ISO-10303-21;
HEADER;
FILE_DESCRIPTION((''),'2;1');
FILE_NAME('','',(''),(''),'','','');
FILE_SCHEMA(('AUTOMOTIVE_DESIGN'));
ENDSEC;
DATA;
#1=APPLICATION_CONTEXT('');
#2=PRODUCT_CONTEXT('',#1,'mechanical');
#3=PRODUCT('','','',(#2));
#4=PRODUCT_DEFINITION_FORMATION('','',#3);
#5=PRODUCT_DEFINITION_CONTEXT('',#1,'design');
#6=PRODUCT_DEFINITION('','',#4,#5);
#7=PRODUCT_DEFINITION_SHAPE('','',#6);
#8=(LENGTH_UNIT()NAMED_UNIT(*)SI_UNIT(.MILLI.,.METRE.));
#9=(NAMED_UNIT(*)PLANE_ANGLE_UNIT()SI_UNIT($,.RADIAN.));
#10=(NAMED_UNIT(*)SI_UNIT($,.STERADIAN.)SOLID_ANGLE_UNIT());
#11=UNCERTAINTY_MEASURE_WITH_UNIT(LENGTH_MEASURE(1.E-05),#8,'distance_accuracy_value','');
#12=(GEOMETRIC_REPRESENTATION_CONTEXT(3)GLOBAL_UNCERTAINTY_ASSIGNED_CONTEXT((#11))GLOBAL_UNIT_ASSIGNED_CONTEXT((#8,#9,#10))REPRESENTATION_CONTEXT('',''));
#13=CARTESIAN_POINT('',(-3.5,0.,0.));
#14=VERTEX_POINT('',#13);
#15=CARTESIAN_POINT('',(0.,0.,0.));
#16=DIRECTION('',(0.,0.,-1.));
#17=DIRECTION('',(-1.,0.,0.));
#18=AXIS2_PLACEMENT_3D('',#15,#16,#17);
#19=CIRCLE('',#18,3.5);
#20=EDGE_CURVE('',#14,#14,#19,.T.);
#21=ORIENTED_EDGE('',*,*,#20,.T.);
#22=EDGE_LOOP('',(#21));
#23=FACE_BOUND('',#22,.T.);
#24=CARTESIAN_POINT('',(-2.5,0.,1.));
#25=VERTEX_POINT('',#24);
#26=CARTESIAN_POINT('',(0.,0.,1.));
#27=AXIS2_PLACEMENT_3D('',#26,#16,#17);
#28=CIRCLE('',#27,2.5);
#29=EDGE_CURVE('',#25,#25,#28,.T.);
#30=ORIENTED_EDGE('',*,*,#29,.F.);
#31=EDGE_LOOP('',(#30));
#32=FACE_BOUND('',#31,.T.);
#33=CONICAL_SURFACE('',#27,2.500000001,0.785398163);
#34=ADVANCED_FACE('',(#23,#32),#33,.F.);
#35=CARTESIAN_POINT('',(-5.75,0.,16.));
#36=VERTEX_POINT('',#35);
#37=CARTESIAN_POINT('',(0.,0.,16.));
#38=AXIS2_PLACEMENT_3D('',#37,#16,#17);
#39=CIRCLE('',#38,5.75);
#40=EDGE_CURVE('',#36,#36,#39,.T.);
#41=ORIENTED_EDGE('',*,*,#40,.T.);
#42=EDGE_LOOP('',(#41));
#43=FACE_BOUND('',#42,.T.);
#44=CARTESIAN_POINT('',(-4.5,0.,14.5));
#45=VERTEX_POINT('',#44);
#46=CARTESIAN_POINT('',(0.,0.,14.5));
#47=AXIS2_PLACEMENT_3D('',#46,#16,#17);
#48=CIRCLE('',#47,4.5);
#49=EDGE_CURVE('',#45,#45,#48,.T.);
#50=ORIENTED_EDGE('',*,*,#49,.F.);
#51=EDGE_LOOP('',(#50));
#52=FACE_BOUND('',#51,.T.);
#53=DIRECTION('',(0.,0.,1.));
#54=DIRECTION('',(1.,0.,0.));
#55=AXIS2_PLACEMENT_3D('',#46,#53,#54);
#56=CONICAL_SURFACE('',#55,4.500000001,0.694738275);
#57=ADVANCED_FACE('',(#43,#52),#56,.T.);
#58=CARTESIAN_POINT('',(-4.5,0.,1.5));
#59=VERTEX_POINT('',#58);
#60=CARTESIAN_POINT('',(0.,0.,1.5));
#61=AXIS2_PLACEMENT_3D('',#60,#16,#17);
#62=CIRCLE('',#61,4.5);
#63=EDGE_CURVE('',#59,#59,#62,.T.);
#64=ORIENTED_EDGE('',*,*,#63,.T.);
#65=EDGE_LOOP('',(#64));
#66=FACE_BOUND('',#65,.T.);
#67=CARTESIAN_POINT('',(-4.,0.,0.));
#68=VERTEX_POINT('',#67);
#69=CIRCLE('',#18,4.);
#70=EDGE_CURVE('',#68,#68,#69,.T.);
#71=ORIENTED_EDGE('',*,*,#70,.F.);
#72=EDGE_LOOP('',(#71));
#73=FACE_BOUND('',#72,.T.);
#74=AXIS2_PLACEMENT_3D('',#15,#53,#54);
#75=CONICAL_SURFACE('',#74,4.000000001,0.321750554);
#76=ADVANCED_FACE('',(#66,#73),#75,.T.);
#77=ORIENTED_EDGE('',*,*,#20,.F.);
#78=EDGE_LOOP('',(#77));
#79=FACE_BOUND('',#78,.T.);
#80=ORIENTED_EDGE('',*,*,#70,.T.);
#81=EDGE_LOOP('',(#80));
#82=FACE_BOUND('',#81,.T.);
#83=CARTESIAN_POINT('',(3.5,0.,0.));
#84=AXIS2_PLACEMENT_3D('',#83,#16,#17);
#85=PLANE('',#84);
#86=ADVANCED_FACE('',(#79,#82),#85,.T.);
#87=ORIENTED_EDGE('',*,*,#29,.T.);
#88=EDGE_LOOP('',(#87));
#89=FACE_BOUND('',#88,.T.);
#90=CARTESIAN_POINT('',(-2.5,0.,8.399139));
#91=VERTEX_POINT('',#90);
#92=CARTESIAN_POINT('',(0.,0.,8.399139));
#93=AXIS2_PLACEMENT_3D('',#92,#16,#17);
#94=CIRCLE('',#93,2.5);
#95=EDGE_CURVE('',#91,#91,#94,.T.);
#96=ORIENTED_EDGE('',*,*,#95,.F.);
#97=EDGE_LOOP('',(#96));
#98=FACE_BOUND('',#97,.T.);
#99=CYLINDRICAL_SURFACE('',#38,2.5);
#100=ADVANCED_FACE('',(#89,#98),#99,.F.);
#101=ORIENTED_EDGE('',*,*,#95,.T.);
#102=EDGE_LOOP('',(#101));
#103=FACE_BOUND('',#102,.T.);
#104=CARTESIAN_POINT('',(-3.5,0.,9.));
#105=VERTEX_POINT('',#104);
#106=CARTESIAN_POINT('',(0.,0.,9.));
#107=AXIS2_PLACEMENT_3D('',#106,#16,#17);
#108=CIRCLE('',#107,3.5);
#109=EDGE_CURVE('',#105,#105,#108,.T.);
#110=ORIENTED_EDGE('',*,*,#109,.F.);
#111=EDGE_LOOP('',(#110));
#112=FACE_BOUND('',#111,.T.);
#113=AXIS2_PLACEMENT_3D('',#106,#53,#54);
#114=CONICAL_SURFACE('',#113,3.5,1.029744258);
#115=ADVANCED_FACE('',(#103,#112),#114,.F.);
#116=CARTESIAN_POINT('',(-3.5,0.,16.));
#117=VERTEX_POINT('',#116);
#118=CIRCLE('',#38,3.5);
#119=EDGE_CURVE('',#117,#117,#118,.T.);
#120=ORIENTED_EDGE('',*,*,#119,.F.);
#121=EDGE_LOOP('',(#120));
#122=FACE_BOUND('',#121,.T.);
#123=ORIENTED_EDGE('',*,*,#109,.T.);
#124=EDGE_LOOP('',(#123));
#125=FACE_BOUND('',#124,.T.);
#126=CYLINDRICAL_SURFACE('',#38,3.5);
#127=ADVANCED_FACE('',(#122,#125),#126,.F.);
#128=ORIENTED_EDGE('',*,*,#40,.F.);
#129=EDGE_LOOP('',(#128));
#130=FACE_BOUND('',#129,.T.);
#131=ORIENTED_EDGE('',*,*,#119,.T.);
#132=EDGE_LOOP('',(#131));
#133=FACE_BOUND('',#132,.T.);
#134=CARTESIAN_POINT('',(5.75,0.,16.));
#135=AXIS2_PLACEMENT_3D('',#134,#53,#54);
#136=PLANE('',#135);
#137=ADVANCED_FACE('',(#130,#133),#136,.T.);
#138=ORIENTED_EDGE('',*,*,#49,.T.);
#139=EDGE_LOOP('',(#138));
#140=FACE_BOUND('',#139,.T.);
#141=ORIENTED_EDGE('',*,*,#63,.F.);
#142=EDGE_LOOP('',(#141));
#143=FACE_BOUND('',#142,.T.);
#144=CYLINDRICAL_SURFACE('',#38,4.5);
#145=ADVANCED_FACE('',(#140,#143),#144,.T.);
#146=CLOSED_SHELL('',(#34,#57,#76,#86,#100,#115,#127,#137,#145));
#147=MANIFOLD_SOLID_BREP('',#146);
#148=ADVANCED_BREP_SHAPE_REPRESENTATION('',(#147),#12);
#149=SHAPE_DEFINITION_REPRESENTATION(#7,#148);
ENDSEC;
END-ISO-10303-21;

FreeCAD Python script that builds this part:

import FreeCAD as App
import Part
import Sketcher
Q = App.Units.Quantity


def add_polygon(sketch, points):
    """Adds a closed chain of lines whose ends are joined by coincident constraints."""
    first, n = sketch.GeometryCount, len(points)
    for a, b in zip(points, points[1:] + points[:1]):
        sketch.addGeometry(Part.LineSegment(App.Vector(*a, 0), App.Vector(*b, 0)), False)
    for i in range(n):
        sketch.addConstraint(Sketcher.Constraint("Coincident", first + i, 2, first + (i + 1) % n, 1))

doc = App.newDocument("Part")
params = doc.addObject("Spreadsheet::Sheet", "Params")
for row, (alias, value) in enumerate([
    ("sketch1_height", "13 mm"),
    ("sketch1_height2", "7 mm"),
    ("sketch1_width", "0.5 mm"),
    ("sketch1_width2", "2.25 mm"),
    ("revolution_angle", "360 deg"),
], start=1):
    params.set(f"A{row}", alias)
    params.set(f"B{row}", "=" + value)
    params.setAlias(f"B{row}", alias)

body = doc.addObject("PartDesign::Body", "Body")

# Sketch on XZ plane
sketch1 = body.newObject("Sketcher::SketchObject", "Sketch")
sketch1.AttachmentSupport = (doc.getObject("XZ_Plane"), [""])
sketch1.MapMode = "FlatFace"
add_polygon(sketch1, [(3.5, 9), (2.5, 8.399139), (2.5, 1), (3.5, 0), (4, 0), (4.5, 1.5), (4.5, 14.5), (5.75, 16), (3.5, 16)])  # lines 0-8
sketch1.addConstraint(Sketcher.Constraint("Vertical", 1))
sketch1.addConstraint(Sketcher.Constraint("Horizontal", 3))
sketch1.addConstraint(Sketcher.Constraint("Vertical", 5))
sketch1.addConstraint(Sketcher.Constraint("Horizontal", 7))
sketch1.addConstraint(Sketcher.Constraint("Vertical", 8))
sketch1.addConstraint(Sketcher.Constraint("PointOnObject", 2, 2, -1))
sketch1.addConstraint(Sketcher.Constraint("Vertical", 2, 2, 7, 2))
sketch1.addConstraint(Sketcher.Constraint("DistanceY", 5, 1, 5, 2, Q("13 mm")))
sketch1.addConstraint(Sketcher.Constraint("DistanceY", 8, 2, 8, 1, Q("7 mm")))
sketch1.addConstraint(Sketcher.Constraint("Angle", 0, Q("-149 deg")))
sketch1.addConstraint(Sketcher.Constraint("Angle", 2, Q("-45 deg")))
sketch1.addConstraint(Sketcher.Constraint("DistanceX", 3, 1, 3, 2, Q("0.5 mm")))
sketch1.addConstraint(Sketcher.Constraint("DistanceY", -1, 1, 1, 2, Q("1 mm")))
sketch1.addConstraint(Sketcher.Constraint("DistanceX", -1, 1, 3, 2, Q("4 mm")))
sketch1.addConstraint(Sketcher.Constraint("DistanceY", -1, 1, 6, 2, Q("16 mm")))
sketch1.addConstraint(Sketcher.Constraint("DistanceX", 2, 2, 4, 2, Q("1 mm")))
sketch1.addConstraint(Sketcher.Constraint("DistanceX", 7, 2, 7, 1, Q("2.25 mm")))
sketch1.addConstraint(Sketcher.Constraint("DistanceY", -1, 1, 4, 2, Q("1.5 mm")))
sketch1.setExpression("Constraints[16]", "Params.sketch1_height")
sketch1.setExpression("Constraints[17]", "Params.sketch1_height2")
sketch1.setExpression("Constraints[20]", "Params.sketch1_width")
sketch1.setExpression("Constraints[25]", "Params.sketch1_width2")
revolution = body.newObject("PartDesign::Revolution", "Revolution")
revolution.Profile = sketch1
revolution.ReferenceAxis = (sketch1, ["V_Axis"])
revolution.setExpression("Angle", "Params.revolution_angle")

doc.recompute()
